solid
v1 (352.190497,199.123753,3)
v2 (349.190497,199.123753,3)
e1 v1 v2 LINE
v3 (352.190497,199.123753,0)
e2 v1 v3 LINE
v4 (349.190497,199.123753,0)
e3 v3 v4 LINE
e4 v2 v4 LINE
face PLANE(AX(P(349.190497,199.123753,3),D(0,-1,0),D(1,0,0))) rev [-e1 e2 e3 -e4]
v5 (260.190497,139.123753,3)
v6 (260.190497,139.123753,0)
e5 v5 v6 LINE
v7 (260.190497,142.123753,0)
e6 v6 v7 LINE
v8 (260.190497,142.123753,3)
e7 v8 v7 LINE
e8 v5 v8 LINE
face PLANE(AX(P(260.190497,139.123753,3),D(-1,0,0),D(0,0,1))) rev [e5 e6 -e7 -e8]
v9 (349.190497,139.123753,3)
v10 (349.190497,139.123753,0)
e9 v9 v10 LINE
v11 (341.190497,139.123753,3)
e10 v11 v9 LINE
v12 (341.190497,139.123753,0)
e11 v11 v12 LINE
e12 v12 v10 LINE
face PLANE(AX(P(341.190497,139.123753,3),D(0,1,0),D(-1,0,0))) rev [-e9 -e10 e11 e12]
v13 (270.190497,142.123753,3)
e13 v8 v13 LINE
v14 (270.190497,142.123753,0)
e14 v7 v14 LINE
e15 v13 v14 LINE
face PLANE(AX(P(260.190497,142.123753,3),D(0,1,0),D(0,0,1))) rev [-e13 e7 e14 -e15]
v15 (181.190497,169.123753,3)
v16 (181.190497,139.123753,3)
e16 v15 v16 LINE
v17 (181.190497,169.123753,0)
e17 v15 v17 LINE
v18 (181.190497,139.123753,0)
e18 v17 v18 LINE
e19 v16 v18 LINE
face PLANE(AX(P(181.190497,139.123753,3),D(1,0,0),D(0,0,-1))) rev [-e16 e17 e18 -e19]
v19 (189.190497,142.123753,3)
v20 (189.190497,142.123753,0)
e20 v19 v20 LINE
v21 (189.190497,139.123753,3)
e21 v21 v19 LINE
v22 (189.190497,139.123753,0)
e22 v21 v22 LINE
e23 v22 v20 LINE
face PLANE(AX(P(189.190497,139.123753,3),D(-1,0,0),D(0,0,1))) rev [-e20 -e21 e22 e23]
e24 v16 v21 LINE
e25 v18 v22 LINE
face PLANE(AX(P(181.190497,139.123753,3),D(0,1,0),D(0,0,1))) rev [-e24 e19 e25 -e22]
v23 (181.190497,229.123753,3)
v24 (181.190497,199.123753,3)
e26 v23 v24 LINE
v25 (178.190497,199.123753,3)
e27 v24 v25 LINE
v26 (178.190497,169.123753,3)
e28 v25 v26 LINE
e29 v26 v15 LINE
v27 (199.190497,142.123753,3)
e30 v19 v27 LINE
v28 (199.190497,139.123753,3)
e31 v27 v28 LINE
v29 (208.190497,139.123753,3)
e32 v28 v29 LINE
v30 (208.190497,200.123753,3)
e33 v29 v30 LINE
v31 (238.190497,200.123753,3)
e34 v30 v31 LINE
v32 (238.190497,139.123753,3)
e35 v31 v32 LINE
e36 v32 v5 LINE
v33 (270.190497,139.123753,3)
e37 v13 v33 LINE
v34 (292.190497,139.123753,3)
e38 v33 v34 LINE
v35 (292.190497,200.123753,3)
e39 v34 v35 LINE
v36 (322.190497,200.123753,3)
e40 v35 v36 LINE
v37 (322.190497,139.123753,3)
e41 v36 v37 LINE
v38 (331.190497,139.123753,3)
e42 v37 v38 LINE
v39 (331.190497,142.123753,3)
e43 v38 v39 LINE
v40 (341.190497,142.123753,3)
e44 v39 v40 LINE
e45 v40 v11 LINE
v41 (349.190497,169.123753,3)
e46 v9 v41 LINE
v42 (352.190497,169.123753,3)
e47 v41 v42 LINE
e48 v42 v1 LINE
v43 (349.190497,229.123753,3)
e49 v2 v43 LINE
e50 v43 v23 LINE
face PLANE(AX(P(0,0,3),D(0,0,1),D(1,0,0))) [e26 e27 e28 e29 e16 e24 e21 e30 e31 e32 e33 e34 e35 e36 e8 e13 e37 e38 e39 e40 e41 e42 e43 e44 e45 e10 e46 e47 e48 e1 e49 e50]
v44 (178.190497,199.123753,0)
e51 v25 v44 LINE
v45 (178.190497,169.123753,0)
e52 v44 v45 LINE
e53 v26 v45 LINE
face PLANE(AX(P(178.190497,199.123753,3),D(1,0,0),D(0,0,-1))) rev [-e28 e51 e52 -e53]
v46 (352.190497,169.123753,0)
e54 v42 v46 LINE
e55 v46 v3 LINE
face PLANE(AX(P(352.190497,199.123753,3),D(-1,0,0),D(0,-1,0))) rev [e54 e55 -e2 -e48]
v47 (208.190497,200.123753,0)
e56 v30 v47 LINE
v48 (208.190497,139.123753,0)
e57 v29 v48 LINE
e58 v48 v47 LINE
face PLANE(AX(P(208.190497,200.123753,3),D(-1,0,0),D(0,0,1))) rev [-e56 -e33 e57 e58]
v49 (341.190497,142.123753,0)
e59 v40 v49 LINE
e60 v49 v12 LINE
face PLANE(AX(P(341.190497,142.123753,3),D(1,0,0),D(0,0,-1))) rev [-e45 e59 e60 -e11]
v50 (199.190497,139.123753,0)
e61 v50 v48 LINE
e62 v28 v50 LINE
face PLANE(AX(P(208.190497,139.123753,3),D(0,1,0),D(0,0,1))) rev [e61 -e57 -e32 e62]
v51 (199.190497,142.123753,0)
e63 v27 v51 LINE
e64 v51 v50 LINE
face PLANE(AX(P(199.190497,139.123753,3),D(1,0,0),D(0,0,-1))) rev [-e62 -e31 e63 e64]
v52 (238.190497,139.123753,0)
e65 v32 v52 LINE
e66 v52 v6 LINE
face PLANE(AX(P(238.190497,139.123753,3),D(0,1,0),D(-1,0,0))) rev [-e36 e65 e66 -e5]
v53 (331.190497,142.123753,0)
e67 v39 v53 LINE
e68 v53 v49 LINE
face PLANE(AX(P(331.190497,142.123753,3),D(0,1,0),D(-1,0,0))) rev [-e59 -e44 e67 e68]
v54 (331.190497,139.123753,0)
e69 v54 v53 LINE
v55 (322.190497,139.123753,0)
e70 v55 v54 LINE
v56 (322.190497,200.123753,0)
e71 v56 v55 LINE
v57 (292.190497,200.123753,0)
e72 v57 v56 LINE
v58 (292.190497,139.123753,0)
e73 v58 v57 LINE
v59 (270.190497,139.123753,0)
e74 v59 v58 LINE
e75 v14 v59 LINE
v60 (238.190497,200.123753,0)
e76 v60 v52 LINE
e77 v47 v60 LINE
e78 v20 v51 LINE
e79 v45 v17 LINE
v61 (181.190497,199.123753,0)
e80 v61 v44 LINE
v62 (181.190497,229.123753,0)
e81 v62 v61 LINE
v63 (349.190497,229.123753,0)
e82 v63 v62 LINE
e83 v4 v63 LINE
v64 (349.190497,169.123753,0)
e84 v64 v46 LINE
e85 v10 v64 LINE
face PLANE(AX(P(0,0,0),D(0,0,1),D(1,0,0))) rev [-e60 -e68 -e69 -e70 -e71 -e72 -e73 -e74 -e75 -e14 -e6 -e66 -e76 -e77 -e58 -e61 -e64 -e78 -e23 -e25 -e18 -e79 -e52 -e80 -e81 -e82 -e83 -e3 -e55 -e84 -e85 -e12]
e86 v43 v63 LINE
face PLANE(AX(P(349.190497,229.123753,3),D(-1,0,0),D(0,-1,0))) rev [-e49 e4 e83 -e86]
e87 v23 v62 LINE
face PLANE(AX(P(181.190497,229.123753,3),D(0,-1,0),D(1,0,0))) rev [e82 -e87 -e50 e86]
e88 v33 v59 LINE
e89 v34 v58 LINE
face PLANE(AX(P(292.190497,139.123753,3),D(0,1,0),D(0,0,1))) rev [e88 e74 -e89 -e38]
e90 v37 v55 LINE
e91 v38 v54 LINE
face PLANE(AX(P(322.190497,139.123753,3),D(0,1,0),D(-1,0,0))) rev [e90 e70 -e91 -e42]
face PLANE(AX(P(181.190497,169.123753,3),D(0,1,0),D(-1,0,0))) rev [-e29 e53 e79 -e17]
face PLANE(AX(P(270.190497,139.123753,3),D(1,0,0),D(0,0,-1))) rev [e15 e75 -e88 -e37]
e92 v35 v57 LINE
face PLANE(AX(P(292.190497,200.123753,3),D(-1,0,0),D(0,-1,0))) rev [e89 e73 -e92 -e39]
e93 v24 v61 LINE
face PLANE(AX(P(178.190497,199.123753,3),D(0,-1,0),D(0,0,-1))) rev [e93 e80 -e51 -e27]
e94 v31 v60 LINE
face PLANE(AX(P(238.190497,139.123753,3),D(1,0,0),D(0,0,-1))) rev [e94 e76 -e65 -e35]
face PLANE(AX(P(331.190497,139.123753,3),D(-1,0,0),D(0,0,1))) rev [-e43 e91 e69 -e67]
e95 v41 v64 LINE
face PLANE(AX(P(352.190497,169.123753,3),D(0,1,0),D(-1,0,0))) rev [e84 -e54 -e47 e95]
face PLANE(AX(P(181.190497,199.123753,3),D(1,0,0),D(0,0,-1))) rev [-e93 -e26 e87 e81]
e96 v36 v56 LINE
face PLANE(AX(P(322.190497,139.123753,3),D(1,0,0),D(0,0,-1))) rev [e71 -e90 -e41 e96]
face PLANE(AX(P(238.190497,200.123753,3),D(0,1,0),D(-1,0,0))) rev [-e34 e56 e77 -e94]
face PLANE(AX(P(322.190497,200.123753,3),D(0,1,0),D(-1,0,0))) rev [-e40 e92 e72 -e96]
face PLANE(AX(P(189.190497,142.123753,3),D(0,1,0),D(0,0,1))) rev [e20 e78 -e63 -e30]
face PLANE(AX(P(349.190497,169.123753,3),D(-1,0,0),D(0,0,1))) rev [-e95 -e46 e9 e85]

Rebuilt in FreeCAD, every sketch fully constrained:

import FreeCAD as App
import Part
import Sketcher
from FreeCAD import Vector


def add_polygon(sketch, points):
    """Adds a closed chain of lines whose ends are joined by coincident constraints."""
    first, n = sketch.GeometryCount, len(points)
    for a, b in zip(points, points[1:] + points[:1]):
        sketch.addGeometry(Part.LineSegment(App.Vector(*a, 0), App.Vector(*b, 0)), False)
    for i in range(n):
        sketch.addConstraint(Sketcher.Constraint("Coincident", first + i, 2, first + (i + 1) % n, 1))

doc = App.newDocument("Part")
body = doc.addObject("PartDesign::Body", "Body")

# Sketch on XY plane
sketch1 = body.newObject("Sketcher::SketchObject", "Sketch")
sketch1.AttachmentSupport = (doc.getObject("XY_Plane"), [""])
sketch1.MapMode = "FlatFace"
add_polygon(sketch1, [(178.190497, 199.123753), (178.190497, 169.123753), (181.190497, 169.123753), (181.190497, 139.123753), (189.190497, 139.123753), (189.190497, 142.123753), (199.190497, 142.123753), (199.190497, 139.123753), (208.190497, 139.123753), (208.190497, 200.123753), (238.190497, 200.123753), (238.190497, 139.123753), (260.190497, 139.123753), (260.190497, 142.123753), (270.190497, 142.123753), (270.190497, 139.123753), (292.190497, 139.123753), (292.190497, 200.123753), (322.190497, 200.123753), (322.190497, 139.123753), (331.190497, 139.123753), (331.190497, 142.123753), (341.190497, 142.123753), (341.190497, 139.123753), (349.190497, 139.123753), (349.190497, 169.123753), (352.190497, 169.123753), (352.190497, 199.123753), (349.190497, 199.123753), (349.190497, 229.123753), (181.190497, 229.123753), (181.190497, 199.123753)])  # lines 0-31
sketch1.addConstraint([
    Sketcher.Constraint("Vertical", 0),
    Sketcher.Constraint("Horizontal", 1),
    Sketcher.Constraint("Vertical", 2),
    Sketcher.Constraint("Horizontal", 3),
    Sketcher.Constraint("Vertical", 4),
    Sketcher.Constraint("Horizontal", 5),
    Sketcher.Constraint("Vertical", 6),
    Sketcher.Constraint("Horizontal", 7),
    Sketcher.Constraint("Vertical", 8),
    Sketcher.Constraint("Horizontal", 9),
    Sketcher.Constraint("Vertical", 10),
    Sketcher.Constraint("Horizontal", 11),
    Sketcher.Constraint("Vertical", 12),
    Sketcher.Constraint("Horizontal", 13),
    Sketcher.Constraint("Vertical", 14),
    Sketcher.Constraint("Horizontal", 15),
    Sketcher.Constraint("Vertical", 16),
    Sketcher.Constraint("Horizontal", 17),
    Sketcher.Constraint("Vertical", 18),
    Sketcher.Constraint("Horizontal", 19),
    Sketcher.Constraint("Vertical", 20),
    Sketcher.Constraint("Horizontal", 21),
    Sketcher.Constraint("Vertical", 22),
    Sketcher.Constraint("Horizontal", 23),
    Sketcher.Constraint("Vertical", 24),
    Sketcher.Constraint("Horizontal", 25),
    Sketcher.Constraint("Vertical", 26),
    Sketcher.Constraint("Horizontal", 27),
    Sketcher.Constraint("Vertical", 28),
    Sketcher.Constraint("Horizontal", 29),
    Sketcher.Constraint("Vertical", 30),
    Sketcher.Constraint("Horizontal", 31),
    Sketcher.Constraint("Horizontal", 3, 2, 6, 2),
    Sketcher.Constraint("Horizontal", 7, 2, 10, 2),
    Sketcher.Constraint("Horizontal", 5, 2, 12, 2),
    Sketcher.Constraint("Horizontal", 11, 2, 14, 2),
    Sketcher.Constraint("Horizontal", 9, 2, 16, 2),
    Sketcher.Constraint("Horizontal", 15, 2, 18, 2),
    Sketcher.Constraint("Horizontal", 13, 2, 20, 2),
    Sketcher.Constraint("Horizontal", 19, 2, 22, 2),
    Sketcher.Constraint("Horizontal", 1, 2, 24, 2),
    Sketcher.Constraint("Horizontal", 27, 2, 30, 2),
    Sketcher.Constraint("Vertical", 24, 2, 27, 2),
    Sketcher.Constraint("Vertical", 2, 2, 29, 2),
    Sketcher.Constraint("Equal", 5, 13),
    Sketcher.Constraint("Equal", 11, 15),
    Sketcher.Constraint("Equal", 9, 17),
    Sketcher.Constraint("Equal", 7, 19),
    Sketcher.Constraint("Equal", 13, 21),
    Sketcher.Constraint("Equal", 3, 23),
    Sketcher.Constraint("Equal", 1, 25),
    Sketcher.Constraint("Equal", 17, 0),
    Sketcher.Constraint("Equal", 0, 2),
    Sketcher.Constraint("Equal", 31, 4),
    Sketcher.Constraint("Equal", 26, 28),
    Sketcher.Constraint("DistanceX", 1, 1, 1, 2, 3.0),
    Sketcher.Constraint("DistanceX", 3, 1, 3, 2, 8.0),
    Sketcher.Constraint("DistanceX", 5, 1, 5, 2, 10.0),
    Sketcher.Constraint("DistanceX", 7, 1, 7, 2, 9.0),
    Sketcher.Constraint("DistanceX", 9, 1, 9, 2, 30.0),
    Sketcher.Constraint("DistanceX", 11, 1, 11, 2, 22.0),
    Sketcher.Constraint("DistanceY", 8, 1, 8, 2, 61.0),
    Sketcher.Constraint("DistanceX", -1, 1, 0, 2, 178.190497),
    Sketcher.Constraint("DistanceY", -1, 1, 0, 2, 169.123753),
])
pad1 = body.newObject("PartDesign::Pad", "Pad")
pad1.Profile = sketch1
pad1.Length = 3

doc.recompute()
